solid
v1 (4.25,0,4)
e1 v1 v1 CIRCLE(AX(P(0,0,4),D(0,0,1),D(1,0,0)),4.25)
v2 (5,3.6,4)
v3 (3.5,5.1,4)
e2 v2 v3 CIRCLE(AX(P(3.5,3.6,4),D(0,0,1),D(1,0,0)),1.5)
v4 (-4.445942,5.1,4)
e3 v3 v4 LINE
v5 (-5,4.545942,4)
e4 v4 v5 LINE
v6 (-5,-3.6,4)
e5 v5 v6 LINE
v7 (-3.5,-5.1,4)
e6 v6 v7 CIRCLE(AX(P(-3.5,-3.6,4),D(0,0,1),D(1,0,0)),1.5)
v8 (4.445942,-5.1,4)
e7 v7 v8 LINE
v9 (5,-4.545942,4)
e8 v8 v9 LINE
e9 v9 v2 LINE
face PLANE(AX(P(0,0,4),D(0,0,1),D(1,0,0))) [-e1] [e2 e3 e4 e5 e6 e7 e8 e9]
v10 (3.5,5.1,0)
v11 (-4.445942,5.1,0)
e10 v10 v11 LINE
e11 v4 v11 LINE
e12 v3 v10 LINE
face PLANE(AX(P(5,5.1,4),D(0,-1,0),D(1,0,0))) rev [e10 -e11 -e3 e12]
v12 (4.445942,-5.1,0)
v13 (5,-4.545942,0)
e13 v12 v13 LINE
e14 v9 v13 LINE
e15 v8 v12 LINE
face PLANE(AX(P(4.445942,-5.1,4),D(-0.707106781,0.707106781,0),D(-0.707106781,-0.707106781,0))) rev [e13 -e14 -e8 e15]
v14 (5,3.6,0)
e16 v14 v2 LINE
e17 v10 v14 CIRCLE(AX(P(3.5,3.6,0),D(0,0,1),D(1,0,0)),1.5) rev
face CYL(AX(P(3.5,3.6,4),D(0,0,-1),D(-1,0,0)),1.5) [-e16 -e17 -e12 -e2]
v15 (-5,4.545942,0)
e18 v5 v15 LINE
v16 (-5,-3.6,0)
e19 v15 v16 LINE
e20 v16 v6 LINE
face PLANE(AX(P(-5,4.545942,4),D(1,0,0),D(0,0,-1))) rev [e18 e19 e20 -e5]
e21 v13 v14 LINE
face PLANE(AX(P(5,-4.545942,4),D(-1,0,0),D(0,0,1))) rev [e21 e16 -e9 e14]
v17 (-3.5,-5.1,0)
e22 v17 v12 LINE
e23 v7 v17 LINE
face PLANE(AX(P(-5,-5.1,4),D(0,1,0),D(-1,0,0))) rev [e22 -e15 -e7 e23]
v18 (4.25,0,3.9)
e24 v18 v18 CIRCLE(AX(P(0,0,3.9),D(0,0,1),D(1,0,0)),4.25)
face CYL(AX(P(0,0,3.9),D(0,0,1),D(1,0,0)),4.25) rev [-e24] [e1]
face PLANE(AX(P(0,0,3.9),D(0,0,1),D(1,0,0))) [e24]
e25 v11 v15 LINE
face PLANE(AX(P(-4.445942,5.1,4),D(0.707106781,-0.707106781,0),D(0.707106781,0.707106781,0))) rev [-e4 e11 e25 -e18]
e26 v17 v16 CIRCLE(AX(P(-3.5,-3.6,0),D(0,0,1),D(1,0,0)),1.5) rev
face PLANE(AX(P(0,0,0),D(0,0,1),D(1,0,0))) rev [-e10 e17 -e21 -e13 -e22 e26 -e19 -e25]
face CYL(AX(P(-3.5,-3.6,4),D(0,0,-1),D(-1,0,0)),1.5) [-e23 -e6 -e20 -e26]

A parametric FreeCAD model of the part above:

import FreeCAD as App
import Part
import Sketcher
from FreeCAD import Vector
Q = App.Units.Quantity


def edges_at(feature, points):
    """Names of the edges that pass closest to the given points."""
    edges = feature.Shape.Edges
    near = lambda p: min(range(len(edges)), key=lambda i: edges[i].distToShape(Part.Vertex(*p))[0])
    return sorted({f"Edge{near(p) + 1}" for p in points})

doc = App.newDocument("Part")
params = doc.addObject("Spreadsheet::Sheet", "Params")
for row, (alias, value) in enumerate([
    ("pad1_length", "4 mm"),
    ("fillet_radius", "1.5 mm"),
    ("sketch2_diameter", "8.5 mm"),
    ("pocket1_length", "0.1 mm"),
], start=1):
    params.set(f"A{row}", alias)
    params.set(f"B{row}", "=" + value)
    params.setAlias(f"B{row}", alias)

body = doc.addObject("PartDesign::Body", "Body")

# Sketch on XY plane
sketch1 = body.newObject("Sketcher::SketchObject", "Sketch")
sketch1.AttachmentSupport = (doc.getObject("XY_Plane"), [""])
sketch1.MapMode = "FlatFace"
sketch1.addGeometry(Part.LineSegment(Vector(-5, 4.5, 0), Vector(-5, -5.1, 0)), False)
sketch1.addGeometry(Part.LineSegment(Vector(-5, -5.1, 0), Vector(4.4, -5.1, 0)), False)
sketch1.addGeometry(Part.LineSegment(Vector(4.4, -5.1, 0), Vector(5, -4.5, 0)), False)
sketch1.addGeometry(Part.LineSegment(Vector(5, -4.5, 0), Vector(5, 5.1, 0)), False)
sketch1.addGeometry(Part.LineSegment(Vector(5, 5.1, 0), Vector(-4.4, 5.1, 0)), False)
sketch1.addGeometry(Part.LineSegment(Vector(-4.4, 5.1, 0), Vector(-5, 4.5, 0)), False)
sketch1.addConstraint(Sketcher.Constraint("Coincident", 0, 2, 1, 1))
sketch1.addConstraint(Sketcher.Constraint("Coincident", 1, 2, 2, 1))
sketch1.addConstraint(Sketcher.Constraint("Coincident", 2, 2, 3, 1))
sketch1.addConstraint(Sketcher.Constraint("Coincident", 3, 2, 4, 1))
sketch1.addConstraint(Sketcher.Constraint("Coincident", 4, 2, 5, 1))
sketch1.addConstraint(Sketcher.Constraint("Coincident", 5, 2, 0, 1))
sketch1.addConstraint(Sketcher.Constraint("Vertical", 0))
sketch1.addConstraint(Sketcher.Constraint("Horizontal", 1))
sketch1.addConstraint(Sketcher.Constraint("Vertical", 3))
sketch1.addConstraint(Sketcher.Constraint("Horizontal", 4))
sketch1.addConstraint(Sketcher.Constraint("Symmetric", 0, 2, 3, 2, -1, 1))
sketch1.addConstraint(Sketcher.Constraint("Parallel", 2, 5))
sketch1.addConstraint(Sketcher.Constraint("Equal", 1, 4))
sketch1.addConstraint(Sketcher.Constraint("Angle", 2, Q("45 deg")))
sketch1.addConstraint(Sketcher.Constraint("DistanceX", 0, 2, -1, 1, 5.0))
sketch1.addConstraint(Sketcher.Constraint("DistanceY", 0, 2, -1, 1, 5.1))
sketch1.addConstraint(Sketcher.Constraint("DistanceX", 1, 1, 1, 2, 9.445942))
pad1 = body.newObject("PartDesign::Pad", "Pad")
pad1.Profile = sketch1
pad1.setExpression("Length", "Params.pad1_length")
doc.recompute()

fillet = body.newObject("PartDesign::Fillet", "Fillet")
fillet.Base = (pad1, edges_at(pad1, [(5, 5.1, 2), (-5, -5.1, 2)]))
fillet.setExpression("Radius", "Params.fillet_radius")

# Sketch on XY plane
sketch2 = body.newObject("Sketcher::SketchObject", "Sketch001")
sketch2.AttachmentSupport = (doc.getObject("XY_Plane"), [""])
sketch2.MapMode = "FlatFace"
sketch2.AttachmentOffset = App.Placement(Vector(0, 0, 4), App.Rotation())
sketch2.addGeometry(Part.Circle(Vector(0, 0, 0), Vector(0, 0, 1), 4.2), False)
sketch2.addConstraint(Sketcher.Constraint("Coincident", 0, 3, -1, 1))
sketch2.addConstraint(Sketcher.Constraint("Diameter", 0, 8.5))
sketch2.setExpression("Constraints[1]", "Params.sketch2_diameter")
pocket1 = body.newObject("PartDesign::Pocket", "Pocket")
pocket1.Profile = sketch2
pocket1.setExpression("Length", "Params.pocket1_length")

doc.recompute()
